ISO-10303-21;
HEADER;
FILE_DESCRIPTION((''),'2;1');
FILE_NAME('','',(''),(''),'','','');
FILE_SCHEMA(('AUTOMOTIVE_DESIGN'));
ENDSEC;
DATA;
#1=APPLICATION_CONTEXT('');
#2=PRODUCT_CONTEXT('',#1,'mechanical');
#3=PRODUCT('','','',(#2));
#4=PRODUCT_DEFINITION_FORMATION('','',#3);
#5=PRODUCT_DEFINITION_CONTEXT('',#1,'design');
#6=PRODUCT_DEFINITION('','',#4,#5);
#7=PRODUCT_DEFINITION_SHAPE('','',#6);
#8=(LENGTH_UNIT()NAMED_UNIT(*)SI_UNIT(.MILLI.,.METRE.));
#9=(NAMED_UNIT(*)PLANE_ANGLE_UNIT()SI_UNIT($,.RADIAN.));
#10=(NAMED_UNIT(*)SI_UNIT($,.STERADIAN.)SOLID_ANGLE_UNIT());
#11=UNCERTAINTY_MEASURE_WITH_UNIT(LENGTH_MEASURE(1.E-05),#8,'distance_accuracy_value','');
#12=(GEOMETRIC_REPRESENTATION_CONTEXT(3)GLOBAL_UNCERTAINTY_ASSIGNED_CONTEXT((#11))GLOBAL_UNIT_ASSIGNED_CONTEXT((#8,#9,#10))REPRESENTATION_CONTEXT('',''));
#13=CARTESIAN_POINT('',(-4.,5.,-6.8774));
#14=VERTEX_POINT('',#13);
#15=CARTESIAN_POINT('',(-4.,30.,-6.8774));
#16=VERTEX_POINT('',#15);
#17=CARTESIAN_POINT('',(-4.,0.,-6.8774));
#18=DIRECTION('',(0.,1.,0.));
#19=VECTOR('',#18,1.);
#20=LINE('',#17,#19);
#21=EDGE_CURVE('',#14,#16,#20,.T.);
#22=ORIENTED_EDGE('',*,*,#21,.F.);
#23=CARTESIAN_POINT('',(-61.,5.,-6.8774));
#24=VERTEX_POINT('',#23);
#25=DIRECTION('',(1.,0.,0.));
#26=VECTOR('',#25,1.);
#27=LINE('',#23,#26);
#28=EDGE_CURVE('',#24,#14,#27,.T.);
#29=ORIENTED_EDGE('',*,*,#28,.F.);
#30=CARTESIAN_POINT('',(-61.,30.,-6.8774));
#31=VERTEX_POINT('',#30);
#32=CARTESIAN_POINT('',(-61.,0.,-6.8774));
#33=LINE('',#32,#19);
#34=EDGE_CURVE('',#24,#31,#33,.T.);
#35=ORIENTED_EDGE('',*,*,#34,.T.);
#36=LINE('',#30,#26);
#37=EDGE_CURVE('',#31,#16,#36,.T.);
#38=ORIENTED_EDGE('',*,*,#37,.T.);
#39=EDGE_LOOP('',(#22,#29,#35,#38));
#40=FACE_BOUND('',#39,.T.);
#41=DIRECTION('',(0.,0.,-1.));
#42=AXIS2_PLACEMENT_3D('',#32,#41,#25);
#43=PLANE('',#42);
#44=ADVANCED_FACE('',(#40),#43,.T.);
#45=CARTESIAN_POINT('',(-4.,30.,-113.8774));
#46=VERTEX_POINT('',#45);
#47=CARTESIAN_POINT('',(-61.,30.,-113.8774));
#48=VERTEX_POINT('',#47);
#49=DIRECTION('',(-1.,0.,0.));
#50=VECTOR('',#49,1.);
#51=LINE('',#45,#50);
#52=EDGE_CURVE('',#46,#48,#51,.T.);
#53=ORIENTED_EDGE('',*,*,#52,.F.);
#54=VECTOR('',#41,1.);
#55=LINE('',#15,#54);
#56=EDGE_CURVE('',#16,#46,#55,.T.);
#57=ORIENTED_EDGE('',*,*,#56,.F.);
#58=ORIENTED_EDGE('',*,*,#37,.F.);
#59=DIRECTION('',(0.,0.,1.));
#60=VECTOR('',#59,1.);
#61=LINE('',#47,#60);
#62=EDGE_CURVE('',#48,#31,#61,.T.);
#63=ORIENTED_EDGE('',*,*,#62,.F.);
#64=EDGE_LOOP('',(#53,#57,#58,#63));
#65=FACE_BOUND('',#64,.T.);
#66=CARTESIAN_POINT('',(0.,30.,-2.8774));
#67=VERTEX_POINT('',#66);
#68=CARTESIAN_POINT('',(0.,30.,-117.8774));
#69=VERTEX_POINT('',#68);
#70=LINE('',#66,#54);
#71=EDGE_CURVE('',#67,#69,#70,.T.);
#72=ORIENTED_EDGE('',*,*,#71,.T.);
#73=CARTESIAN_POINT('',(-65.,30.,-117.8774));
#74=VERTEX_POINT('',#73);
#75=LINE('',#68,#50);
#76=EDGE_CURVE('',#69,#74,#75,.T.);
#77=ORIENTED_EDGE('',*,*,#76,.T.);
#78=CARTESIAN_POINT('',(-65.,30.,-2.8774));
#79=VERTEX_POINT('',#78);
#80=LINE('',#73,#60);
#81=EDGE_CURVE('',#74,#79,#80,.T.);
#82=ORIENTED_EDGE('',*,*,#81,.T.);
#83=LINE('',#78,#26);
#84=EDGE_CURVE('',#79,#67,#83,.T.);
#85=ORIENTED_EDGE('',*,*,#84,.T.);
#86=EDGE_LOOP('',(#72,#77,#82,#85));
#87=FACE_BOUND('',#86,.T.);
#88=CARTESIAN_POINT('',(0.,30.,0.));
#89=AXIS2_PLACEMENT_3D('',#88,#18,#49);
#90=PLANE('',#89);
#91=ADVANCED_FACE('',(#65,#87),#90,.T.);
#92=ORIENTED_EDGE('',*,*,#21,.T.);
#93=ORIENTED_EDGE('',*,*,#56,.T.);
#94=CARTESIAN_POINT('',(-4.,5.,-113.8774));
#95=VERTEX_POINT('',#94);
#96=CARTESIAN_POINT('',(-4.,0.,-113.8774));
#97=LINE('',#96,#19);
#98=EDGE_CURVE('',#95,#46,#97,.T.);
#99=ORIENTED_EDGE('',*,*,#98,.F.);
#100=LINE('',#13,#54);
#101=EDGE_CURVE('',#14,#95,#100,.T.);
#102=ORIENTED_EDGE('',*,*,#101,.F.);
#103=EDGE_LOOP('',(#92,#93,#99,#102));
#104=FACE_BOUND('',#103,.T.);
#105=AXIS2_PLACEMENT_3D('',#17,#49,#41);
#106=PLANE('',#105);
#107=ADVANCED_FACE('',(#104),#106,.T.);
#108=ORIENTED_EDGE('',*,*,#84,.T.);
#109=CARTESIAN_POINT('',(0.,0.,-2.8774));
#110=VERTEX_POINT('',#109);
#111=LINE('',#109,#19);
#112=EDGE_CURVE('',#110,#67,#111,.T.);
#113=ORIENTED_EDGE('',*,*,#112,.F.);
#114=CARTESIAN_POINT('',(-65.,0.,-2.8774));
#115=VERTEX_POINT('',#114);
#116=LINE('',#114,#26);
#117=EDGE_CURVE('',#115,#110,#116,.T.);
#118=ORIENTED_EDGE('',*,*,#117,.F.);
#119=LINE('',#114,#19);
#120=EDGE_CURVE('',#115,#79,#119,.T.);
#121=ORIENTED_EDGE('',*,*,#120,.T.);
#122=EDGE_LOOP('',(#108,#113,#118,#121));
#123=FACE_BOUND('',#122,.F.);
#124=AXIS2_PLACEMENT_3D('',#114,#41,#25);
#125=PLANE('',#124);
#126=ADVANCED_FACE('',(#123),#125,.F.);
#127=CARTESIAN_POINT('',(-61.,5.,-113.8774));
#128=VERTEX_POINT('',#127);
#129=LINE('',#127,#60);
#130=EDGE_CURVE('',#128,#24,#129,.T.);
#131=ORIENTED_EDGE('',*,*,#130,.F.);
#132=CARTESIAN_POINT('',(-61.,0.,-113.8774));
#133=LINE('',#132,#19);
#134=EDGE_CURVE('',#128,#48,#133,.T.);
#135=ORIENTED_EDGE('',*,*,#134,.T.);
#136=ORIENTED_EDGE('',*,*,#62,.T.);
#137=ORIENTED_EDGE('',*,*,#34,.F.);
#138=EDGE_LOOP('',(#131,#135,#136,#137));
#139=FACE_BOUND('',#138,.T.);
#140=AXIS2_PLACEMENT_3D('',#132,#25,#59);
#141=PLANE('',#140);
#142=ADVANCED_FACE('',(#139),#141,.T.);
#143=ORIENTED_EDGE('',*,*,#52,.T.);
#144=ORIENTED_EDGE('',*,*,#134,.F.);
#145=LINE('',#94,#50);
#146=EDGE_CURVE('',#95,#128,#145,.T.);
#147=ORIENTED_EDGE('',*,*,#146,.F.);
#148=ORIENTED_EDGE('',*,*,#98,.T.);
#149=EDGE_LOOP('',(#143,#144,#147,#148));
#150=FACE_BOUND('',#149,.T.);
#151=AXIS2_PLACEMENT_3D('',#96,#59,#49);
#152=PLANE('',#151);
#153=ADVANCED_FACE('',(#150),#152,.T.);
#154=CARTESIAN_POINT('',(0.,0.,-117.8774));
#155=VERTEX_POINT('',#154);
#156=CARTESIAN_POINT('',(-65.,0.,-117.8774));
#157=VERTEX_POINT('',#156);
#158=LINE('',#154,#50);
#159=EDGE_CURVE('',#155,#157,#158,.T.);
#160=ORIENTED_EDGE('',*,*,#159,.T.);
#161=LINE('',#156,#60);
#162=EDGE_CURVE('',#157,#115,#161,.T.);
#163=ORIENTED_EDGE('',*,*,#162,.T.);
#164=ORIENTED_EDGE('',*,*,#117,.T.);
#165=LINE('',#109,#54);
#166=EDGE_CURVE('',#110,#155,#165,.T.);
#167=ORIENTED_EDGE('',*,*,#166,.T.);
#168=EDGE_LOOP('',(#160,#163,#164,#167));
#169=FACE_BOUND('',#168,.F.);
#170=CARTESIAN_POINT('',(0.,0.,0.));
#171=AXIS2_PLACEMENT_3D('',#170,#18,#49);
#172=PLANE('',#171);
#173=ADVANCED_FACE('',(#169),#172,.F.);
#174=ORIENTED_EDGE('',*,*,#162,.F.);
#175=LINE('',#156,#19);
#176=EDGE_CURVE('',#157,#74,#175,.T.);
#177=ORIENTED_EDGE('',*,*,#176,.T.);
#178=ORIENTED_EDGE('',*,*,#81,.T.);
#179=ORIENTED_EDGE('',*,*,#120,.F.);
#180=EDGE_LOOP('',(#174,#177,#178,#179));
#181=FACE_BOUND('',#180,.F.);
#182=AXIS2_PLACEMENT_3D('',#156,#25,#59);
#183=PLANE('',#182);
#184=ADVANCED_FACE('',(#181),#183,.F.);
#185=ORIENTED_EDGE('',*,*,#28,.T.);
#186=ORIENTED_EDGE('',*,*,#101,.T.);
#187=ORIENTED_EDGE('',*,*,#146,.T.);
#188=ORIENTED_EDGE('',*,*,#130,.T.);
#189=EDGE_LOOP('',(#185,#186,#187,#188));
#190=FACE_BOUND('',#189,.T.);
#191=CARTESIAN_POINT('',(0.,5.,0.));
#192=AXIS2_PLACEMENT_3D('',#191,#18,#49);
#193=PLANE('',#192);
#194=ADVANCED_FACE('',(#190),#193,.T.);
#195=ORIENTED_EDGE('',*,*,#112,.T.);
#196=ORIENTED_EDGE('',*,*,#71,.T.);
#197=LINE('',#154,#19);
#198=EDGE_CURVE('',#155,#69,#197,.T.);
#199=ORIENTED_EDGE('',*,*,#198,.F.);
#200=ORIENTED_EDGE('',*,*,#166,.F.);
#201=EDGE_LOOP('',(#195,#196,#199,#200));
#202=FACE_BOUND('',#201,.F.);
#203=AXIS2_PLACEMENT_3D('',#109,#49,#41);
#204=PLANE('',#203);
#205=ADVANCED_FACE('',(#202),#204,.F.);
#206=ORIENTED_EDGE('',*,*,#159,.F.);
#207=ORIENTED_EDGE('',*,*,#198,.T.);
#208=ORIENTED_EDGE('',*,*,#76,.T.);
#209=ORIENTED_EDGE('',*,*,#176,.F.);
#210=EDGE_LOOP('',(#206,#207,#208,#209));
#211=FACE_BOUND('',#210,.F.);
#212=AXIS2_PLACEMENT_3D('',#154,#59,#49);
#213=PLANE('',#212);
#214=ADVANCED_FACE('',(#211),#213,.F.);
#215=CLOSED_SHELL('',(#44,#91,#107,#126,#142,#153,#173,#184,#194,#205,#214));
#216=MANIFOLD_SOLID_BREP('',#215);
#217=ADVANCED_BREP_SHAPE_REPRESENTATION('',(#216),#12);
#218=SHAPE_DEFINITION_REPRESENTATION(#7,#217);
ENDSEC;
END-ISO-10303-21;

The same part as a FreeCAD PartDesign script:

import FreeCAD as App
import Part
import Sketcher
Q = App.Units.Quantity

doc = App.newDocument("Part")
body = doc.addObject("PartDesign::Body", "Body")

sketch1 = body.newObject("Sketcher::SketchObject", "Sketch")
sketch1.AttachmentSupport = (doc.getObject("XZ_Plane"), [""])
sketch1.MapMode = "FlatFace"
sketch1.addGeometry([
    Part.LineSegment(App.Vector(-65, -118, 0), App.Vector(-65, -3, 0)),
    Part.LineSegment(App.Vector(-65, -3, 0), App.Vector(0, -3, 0)),
    Part.LineSegment(App.Vector(0, -3, 0), App.Vector(0, -118, 0)),
    Part.LineSegment(App.Vector(0, -118, 0), App.Vector(-65, -118, 0)),
    Part.LineSegment(App.Vector(-4, -7, 0), App.Vector(-61, -7, 0)),
    Part.LineSegment(App.Vector(-61, -7, 0), App.Vector(-61, -114, 0)),
    Part.LineSegment(App.Vector(-61, -114, 0), App.Vector(-4, -114, 0)),
    Part.LineSegment(App.Vector(-4, -114, 0), App.Vector(-4, -7, 0)),
], False)
sketch1.addConstraint([
    Sketcher.Constraint("Coincident", 0, 2, 1, 1),
    Sketcher.Constraint("Coincident", 1, 2, 2, 1),
    Sketcher.Constraint("Coincident", 2, 2, 3, 1),
    Sketcher.Constraint("Coincident", 3, 2, 0, 1),
    Sketcher.Constraint("Coincident", 4, 2, 5, 1),
    Sketcher.Constraint("Coincident", 5, 2, 6, 1),
    Sketcher.Constraint("Coincident", 6, 2, 7, 1),
    Sketcher.Constraint("Coincident", 7, 2, 4, 1),
    Sketcher.Constraint("Vertical", 0),
    Sketcher.Constraint("Horizontal", 1),
    Sketcher.Constraint("Vertical", 2),
    Sketcher.Constraint("Horizontal", 3),
    Sketcher.Constraint("Horizontal", 4),
    Sketcher.Constraint("Vertical", 5),
    Sketcher.Constraint("Horizontal", 6),
    Sketcher.Constraint("Vertical", 7),
    Sketcher.Constraint("PointOnObject", 1, 2, -2),
    Sketcher.Constraint("DistanceX", 1, 1, 1, 2, Q("65 mm")),
    Sketcher.Constraint("DistanceY", 0, 1, 0, 2, Q("115 mm")),
    Sketcher.Constraint("DistanceX", 6, 2, -1, 1, Q("4 mm")),
    Sketcher.Constraint("DistanceX", 0, 2, 4, 2, Q("4 mm")),
    Sketcher.Constraint("DistanceY", 4, 2, 0, 2, Q("4 mm")),
    Sketcher.Constraint("DistanceY", 3, 2, 5, 2, Q("4 mm")),
    Sketcher.Constraint("DistanceY", 0, 2, -1, 1, Q("2.8774 mm")),
])
pad1 = body.newObject("PartDesign::Pad", "Pad")
pad1.Profile = sketch1
pad1.Length = 30
pad1.Reversed = True

sketch2 = body.newObject("Sketcher::SketchObject", "Sketch001")
sketch2.AttachmentSupport = (doc.getObject("XZ_Plane"), [""])
sketch2.MapMode = "FlatFace"
sketch2.addGeometry([
    Part.LineSegment(App.Vector(-61, -114, 0), App.Vector(-61, -7, 0)),
    Part.LineSegment(App.Vector(-61, -7, 0), App.Vector(-4, -7, 0)),
    Part.LineSegment(App.Vector(-4, -7, 0), App.Vector(-4, -114, 0)),
    Part.LineSegment(App.Vector(-4, -114, 0), App.Vector(-61, -114, 0)),
], False)
sketch2.addConstraint([
    Sketcher.Constraint("Coincident", 0, 2, 1, 1),
    Sketcher.Constraint("Coincident", 1, 2, 2, 1),
    Sketcher.Constraint("Coincident", 2, 2, 3, 1),
    Sketcher.Constraint("Coincident", 3, 2, 0, 1),
    Sketcher.Constraint("Vertical", 0),
    Sketcher.Constraint("Horizontal", 1),
    Sketcher.Constraint("Vertical", 2),
    Sketcher.Constraint("Horizontal", 3),
    Sketcher.Constraint("DistanceX", 1, 2, -1, 1, Q("4 mm")),
    Sketcher.Constraint("DistanceX", 1, 1, 1, 2, Q("57 mm")),
    Sketcher.Constraint("DistanceY", 0, 1, 0, 2, Q("107 mm")),
    Sketcher.Constraint("DistanceY", 0, 2, -1, 1, Q("6.8774 mm")),
])
pad2 = body.newObject("PartDesign::Pad", "Pad001")
pad2.Profile = sketch2
pad2.Length = 5
pad2.Reversed = True

doc.recompute()
